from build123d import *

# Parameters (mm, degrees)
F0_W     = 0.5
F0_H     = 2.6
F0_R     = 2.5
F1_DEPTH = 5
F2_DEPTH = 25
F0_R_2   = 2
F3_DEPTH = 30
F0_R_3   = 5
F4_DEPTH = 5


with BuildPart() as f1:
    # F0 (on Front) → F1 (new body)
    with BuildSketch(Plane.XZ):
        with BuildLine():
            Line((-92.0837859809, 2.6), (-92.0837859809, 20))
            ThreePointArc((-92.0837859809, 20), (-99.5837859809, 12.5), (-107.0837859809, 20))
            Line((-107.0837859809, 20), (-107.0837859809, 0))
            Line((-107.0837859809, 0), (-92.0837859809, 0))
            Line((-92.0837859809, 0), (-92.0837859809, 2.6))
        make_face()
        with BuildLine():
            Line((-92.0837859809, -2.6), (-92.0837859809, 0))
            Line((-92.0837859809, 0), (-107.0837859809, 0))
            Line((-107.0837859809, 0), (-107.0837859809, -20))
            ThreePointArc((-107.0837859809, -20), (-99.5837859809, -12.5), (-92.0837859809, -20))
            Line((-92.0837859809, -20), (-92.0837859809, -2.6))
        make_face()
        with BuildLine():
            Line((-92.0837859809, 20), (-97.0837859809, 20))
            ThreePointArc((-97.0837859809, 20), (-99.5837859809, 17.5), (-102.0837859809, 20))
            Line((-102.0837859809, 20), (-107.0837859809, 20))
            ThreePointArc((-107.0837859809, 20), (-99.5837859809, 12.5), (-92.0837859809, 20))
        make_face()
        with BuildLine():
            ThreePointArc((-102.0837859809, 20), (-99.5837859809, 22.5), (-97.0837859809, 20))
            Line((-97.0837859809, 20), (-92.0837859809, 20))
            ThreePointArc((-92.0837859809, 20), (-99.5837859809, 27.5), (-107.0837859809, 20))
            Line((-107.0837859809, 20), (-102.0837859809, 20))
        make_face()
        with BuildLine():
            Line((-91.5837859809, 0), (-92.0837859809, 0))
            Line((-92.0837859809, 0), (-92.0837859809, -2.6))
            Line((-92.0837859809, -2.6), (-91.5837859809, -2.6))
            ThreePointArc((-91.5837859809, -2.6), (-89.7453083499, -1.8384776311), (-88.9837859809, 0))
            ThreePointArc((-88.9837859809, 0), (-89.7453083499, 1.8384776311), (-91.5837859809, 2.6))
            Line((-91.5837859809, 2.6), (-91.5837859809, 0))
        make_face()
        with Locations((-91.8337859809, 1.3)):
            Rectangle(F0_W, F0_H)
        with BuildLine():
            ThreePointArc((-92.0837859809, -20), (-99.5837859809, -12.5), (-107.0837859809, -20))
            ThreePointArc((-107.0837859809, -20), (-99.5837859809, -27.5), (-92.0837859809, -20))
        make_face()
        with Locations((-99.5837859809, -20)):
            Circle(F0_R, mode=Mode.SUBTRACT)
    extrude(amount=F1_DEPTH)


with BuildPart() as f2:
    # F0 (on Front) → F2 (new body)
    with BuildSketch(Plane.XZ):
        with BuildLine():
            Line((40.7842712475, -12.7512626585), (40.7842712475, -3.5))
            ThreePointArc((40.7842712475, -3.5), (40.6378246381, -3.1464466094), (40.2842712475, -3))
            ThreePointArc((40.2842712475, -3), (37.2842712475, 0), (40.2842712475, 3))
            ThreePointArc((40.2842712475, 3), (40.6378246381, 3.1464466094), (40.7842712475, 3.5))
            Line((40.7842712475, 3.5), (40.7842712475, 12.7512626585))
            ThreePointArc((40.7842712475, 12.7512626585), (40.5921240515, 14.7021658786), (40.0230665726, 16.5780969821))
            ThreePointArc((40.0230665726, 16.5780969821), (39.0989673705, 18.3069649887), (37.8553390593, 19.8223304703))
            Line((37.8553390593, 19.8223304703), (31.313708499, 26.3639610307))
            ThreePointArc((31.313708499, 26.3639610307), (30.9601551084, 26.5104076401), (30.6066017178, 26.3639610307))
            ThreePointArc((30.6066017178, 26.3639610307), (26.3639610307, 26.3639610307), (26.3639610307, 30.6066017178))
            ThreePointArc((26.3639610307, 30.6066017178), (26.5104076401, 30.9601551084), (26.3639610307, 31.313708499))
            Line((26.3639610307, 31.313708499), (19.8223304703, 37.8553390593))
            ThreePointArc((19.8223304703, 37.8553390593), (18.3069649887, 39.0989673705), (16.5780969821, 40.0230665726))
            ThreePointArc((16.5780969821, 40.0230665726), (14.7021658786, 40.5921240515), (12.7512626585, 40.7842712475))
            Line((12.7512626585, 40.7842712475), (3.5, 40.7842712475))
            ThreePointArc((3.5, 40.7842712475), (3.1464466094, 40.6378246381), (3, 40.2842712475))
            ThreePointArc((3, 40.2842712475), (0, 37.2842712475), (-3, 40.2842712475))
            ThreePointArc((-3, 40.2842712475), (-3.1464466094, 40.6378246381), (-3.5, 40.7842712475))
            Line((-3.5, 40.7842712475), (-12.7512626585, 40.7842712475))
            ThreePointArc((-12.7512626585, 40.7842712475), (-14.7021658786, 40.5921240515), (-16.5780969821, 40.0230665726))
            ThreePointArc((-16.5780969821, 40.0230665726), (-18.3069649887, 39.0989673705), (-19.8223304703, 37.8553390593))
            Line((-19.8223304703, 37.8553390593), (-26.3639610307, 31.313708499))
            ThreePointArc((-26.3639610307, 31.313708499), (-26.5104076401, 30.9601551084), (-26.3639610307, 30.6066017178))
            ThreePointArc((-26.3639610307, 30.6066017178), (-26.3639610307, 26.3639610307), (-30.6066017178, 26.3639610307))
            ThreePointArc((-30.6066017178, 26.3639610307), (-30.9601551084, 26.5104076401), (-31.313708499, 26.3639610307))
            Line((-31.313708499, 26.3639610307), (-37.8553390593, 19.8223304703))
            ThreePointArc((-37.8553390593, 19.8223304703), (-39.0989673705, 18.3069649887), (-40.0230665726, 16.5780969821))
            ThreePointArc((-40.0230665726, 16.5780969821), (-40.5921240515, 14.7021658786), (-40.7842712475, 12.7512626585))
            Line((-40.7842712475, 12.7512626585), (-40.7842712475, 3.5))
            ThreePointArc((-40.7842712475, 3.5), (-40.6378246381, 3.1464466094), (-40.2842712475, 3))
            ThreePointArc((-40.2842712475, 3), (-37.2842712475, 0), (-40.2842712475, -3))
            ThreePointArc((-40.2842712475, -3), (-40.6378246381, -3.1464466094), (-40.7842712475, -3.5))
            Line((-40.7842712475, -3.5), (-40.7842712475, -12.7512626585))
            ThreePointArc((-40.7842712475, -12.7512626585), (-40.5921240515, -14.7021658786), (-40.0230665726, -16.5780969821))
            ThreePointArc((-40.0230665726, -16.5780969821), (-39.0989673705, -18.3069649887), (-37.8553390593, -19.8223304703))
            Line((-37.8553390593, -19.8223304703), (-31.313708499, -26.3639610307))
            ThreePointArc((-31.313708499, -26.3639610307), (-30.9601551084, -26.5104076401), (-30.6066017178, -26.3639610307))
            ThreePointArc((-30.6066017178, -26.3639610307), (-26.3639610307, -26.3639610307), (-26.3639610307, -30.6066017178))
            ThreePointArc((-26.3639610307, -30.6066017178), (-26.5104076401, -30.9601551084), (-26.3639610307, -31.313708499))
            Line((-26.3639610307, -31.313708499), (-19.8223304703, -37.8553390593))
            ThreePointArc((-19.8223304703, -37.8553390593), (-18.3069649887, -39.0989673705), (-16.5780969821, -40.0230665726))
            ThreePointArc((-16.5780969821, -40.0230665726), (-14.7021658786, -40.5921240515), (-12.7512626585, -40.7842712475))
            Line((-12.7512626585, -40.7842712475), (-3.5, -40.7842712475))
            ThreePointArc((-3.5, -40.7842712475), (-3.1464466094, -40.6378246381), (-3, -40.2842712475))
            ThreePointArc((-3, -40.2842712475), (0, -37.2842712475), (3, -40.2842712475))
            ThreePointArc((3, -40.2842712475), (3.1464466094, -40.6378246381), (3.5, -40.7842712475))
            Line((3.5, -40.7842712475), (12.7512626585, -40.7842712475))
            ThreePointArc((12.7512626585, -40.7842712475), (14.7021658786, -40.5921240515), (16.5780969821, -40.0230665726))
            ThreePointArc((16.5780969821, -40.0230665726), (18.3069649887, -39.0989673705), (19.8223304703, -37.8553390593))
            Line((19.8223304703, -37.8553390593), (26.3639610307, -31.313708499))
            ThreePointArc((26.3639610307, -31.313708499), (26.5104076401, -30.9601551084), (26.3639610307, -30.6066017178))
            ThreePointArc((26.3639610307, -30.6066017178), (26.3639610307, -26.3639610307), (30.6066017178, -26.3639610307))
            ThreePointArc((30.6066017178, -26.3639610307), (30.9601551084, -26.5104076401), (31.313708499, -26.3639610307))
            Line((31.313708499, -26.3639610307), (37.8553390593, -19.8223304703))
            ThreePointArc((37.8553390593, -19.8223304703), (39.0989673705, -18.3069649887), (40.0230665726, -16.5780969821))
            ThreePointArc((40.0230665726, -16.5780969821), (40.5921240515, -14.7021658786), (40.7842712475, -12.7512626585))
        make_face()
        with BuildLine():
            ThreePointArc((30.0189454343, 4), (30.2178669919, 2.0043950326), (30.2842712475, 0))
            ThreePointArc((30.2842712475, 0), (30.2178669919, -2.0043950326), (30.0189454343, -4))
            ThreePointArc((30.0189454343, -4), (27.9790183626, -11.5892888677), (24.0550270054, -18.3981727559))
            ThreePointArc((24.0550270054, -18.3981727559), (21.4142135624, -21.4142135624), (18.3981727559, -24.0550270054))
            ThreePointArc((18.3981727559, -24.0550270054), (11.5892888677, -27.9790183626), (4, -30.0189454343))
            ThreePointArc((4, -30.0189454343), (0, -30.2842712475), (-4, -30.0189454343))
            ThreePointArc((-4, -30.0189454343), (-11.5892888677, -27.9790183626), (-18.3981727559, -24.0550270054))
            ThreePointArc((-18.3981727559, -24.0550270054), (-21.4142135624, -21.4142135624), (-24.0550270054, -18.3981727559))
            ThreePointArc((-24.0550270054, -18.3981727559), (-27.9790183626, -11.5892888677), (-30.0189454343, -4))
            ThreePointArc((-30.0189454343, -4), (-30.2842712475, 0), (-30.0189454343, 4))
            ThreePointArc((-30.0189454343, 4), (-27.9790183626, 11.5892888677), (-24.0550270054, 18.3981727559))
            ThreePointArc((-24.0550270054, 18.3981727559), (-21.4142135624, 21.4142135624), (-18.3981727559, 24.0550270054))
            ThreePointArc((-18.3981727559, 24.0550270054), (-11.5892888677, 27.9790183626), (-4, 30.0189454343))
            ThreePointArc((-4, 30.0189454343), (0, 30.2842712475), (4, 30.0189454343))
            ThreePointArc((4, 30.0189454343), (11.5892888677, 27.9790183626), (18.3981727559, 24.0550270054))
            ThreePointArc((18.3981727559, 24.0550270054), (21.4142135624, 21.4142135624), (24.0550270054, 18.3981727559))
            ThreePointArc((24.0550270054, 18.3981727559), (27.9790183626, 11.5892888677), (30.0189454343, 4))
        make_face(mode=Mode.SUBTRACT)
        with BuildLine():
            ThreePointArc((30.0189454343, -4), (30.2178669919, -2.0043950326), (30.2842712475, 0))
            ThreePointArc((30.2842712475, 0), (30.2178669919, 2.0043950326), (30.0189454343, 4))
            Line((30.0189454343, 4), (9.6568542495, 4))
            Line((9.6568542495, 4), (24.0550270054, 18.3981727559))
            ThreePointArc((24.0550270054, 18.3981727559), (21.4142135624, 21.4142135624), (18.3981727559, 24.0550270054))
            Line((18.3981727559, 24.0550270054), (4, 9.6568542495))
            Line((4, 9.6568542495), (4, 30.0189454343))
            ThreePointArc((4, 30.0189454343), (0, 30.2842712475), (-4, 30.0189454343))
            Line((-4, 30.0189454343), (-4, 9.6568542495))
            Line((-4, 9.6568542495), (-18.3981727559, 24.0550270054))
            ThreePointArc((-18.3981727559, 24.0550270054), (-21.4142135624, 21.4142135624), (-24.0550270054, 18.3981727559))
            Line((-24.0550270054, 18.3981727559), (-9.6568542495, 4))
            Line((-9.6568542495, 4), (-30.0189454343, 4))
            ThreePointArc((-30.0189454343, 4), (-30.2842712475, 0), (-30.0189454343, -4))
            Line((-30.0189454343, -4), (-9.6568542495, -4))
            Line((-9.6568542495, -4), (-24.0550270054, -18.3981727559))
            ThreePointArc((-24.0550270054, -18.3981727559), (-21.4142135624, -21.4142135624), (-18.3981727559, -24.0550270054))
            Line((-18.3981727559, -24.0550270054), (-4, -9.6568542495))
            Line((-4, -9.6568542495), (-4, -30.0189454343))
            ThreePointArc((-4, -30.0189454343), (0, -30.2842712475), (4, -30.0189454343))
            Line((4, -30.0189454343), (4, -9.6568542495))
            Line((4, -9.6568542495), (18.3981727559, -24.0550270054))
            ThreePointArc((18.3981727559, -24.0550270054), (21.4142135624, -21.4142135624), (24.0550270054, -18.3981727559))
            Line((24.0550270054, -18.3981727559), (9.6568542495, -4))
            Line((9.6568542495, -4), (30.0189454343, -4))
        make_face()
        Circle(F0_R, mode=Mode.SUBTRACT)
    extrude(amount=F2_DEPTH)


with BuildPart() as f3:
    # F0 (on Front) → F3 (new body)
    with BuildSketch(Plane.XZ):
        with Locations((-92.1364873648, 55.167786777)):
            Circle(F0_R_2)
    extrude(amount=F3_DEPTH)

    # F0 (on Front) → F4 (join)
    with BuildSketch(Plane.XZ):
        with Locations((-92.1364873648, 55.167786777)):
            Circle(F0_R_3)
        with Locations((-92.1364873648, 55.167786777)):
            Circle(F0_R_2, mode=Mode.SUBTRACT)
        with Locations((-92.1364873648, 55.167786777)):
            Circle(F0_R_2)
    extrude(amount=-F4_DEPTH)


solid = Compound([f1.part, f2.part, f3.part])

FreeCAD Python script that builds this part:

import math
import FreeCAD as App
import Part
import Sketcher
from FreeCAD import Vector

doc = App.newDocument("Part")
body = doc.addObject("PartDesign::Body", "Body")

# Sketch on XZ plane
sketch1 = body.newObject("Sketcher::SketchObject", "Sketch")
sketch1.AttachmentSupport = (doc.getObject("XZ_Plane"), [""])
sketch1.MapMode = "FlatFace"
sketch1.addGeometry([
    Part.LineSegment(Vector(-107.1, 20, 0), Vector(-107.1, -20, 0)),  # 0
    Part.ArcOfCircle(Part.Circle(Vector(-99.6, -20, 0), Vector(0, 0, 1), 7.5), math.radians(180), math.radians(360)),  # 1
    Part.LineSegment(Vector(-92.1, -20, 0), Vector(-92.1, -2.6, 0)),  # 2
    Part.LineSegment(Vector(-92.1, -2.6, 0), Vector(-91.6, -2.6, 0)),  # 3
    Part.ArcOfCircle(Part.Circle(Vector(-91.6, 0, 0), Vector(0, 0, 1), 2.6), math.radians(-90), math.radians(0)),  # 4
    Part.ArcOfCircle(Part.Circle(Vector(-91.6, 0, 0), Vector(0, 0, 1), 2.6), math.radians(0), math.radians(90)),  # 5
    Part.LineSegment(Vector(-91.6, 2.6, 0), Vector(-92.1, 2.6, 0)),  # 6
    Part.LineSegment(Vector(-92.1, 2.6, 0), Vector(-92.1, 20, 0)),  # 7
    Part.ArcOfCircle(Part.Circle(Vector(-99.6, 20, 0), Vector(0, 0, 1), 7.5), math.radians(0), math.radians(180)),  # 8
    Part.Circle(Vector(-99.6, -20, 0), Vector(0, 0, 1), 2.5),  # 9
    Part.Circle(Vector(-99.6, 20, 0), Vector(0, 0, 1), 2.5),  # 10
], False)
sketch1.addConstraint([
    Sketcher.Constraint("Tangent", 0, 2, 1, 1),
    Sketcher.Constraint("Tangent", 1, 2, 2, 1),
    Sketcher.Constraint("Coincident", 2, 2, 3, 1),
    Sketcher.Constraint("Tangent", 3, 2, 4, 1),
    Sketcher.Constraint("Tangent", 4, 2, 5, 1),
    Sketcher.Constraint("Tangent", 5, 2, 6, 1),
    Sketcher.Constraint("Coincident", 6, 2, 7, 1),
    Sketcher.Constraint("Tangent", 7, 2, 8, 1),
    Sketcher.Constraint("Tangent", 8, 2, 0, 1),
    Sketcher.Constraint("Vertical", 0),
    Sketcher.Constraint("Vertical", 2),
    Sketcher.Constraint("Horizontal", 3),
    Sketcher.Constraint("Horizontal", 6),
    Sketcher.Constraint("Vertical", 7),
    Sketcher.Constraint("Coincident", 9, 3, 1, 3),
    Sketcher.Constraint("Coincident", 10, 3, 8, 3),
    Sketcher.Constraint("Equal", 4, 5),
    Sketcher.Constraint("Equal", 1, 8),
    Sketcher.Constraint("Equal", 9, 10),
    Sketcher.Constraint("PointOnObject", 4, 3, -1),
    Sketcher.Constraint("PointOnObject", 4, 2, -1),
    Sketcher.Constraint("Equal", 2, 7),
    Sketcher.Constraint("Diameter", 9, 5.0),
    Sketcher.Constraint("Radius", 1, 7.5),
    Sketcher.Constraint("Radius", 4, 2.6),
    Sketcher.Constraint("DistanceY", 0, 2, 0, 1, 40.0),
    Sketcher.Constraint("DistanceX", 3, 1, 3, 2, 0.5),
    Sketcher.Constraint("DistanceX", 1, 3, -1, 1, 99.583786),
])
pad1 = body.newObject("PartDesign::Pad", "Pad")
pad1.Profile = sketch1
pad1.Length = 5
body2 = doc.addObject("PartDesign::Body", "Body001")

# Sketch on XZ plane
sketch2 = body2.newObject("Sketcher::SketchObject", "Sketch001")
sketch2.AttachmentSupport = (doc.getObject("XZ_Plane001"), [""])
sketch2.MapMode = "FlatFace"
sketch2.addGeometry([
    Part.LineSegment(Vector(40.8, -12.8, 0), Vector(40.8, -3.5, 0)),  # 0
    Part.ArcOfCircle(Part.Circle(Vector(40.3, -3.5, 0), Vector(0, 0, 1), 0.5), math.radians(0), math.radians(90)),  # 1
    Part.ArcOfCircle(Part.Circle(Vector(40.3, 0, 0), Vector(0, 0, 1), 3), math.radians(90), math.radians(270)),  # 2
    Part.ArcOfCircle(Part.Circle(Vector(40.3, 3.5, 0), Vector(0, 0, 1), 0.5), math.radians(-90), math.radians(0)),  # 3
    Part.LineSegment(Vector(40.8, 3.5, 0), Vector(40.8, 12.8, 0)),  # 4
    Part.ArcOfCircle(Part.Circle(Vector(30.8, 12.8, 0), Vector(0, 0, 1), 10), math.radians(0), math.radians(22)),  # 5
    Part.ArcOfCircle(Part.Circle(Vector(30.8, 12.8, 0), Vector(0, 0, 1), 10), math.radians(22), math.radians(45)),  # 6
    Part.LineSegment(Vector(37.9, 19.8, 0), Vector(31.3, 26.4, 0)),  # 7
    Part.ArcOfCircle(Part.Circle(Vector(31, 26, 0), Vector(0, 0, 1), 0.5), math.radians(45), math.radians(135)),  # 8
    Part.ArcOfCircle(Part.Circle(Vector(28.5, 28.5, 0), Vector(0, 0, 1), 3), math.radians(135), math.radians(315)),  # 9
    Part.ArcOfCircle(Part.Circle(Vector(26, 31, 0), Vector(0, 0, 1), 0.5), math.radians(-45), math.radians(45)),  # 10
    Part.LineSegment(Vector(26.4, 31.3, 0), Vector(19.8, 37.9, 0)),  # 11
    Part.ArcOfCircle(Part.Circle(Vector(12.8, 30.8, 0), Vector(0, 0, 1), 10), math.radians(45), math.radians(68)),  # 12
    Part.ArcOfCircle(Part.Circle(Vector(12.8, 30.8, 0), Vector(0, 0, 1), 10), math.radians(68), math.radians(90)),  # 13
    Part.LineSegment(Vector(12.8, 40.8, 0), Vector(3.5, 40.8, 0)),  # 14
    Part.ArcOfCircle(Part.Circle(Vector(3.5, 40.3, 0), Vector(0, 0, 1), 0.5), math.radians(90), math.radians(180)),  # 15
    Part.ArcOfCircle(Part.Circle(Vector(0, 40.3, 0), Vector(0, 0, 1), 3), math.radians(180), math.radians(360)),  # 16
    Part.ArcOfCircle(Part.Circle(Vector(-3.5, 40.3, 0), Vector(0, 0, 1), 0.5), math.radians(0), math.radians(90)),  # 17
    Part.LineSegment(Vector(-3.5, 40.8, 0), Vector(-12.8, 40.8, 0)),  # 18
    Part.ArcOfCircle(Part.Circle(Vector(-12.8, 30.8, 0), Vector(0, 0, 1), 10), math.radians(90), math.radians(112)),  # 19
    Part.ArcOfCircle(Part.Circle(Vector(-12.8, 30.8, 0), Vector(0, 0, 1), 10), math.radians(112), math.radians(135)),  # 20
    Part.LineSegment(Vector(-19.8, 37.9, 0), Vector(-26.4, 31.3, 0)),  # 21
    Part.ArcOfCircle(Part.Circle(Vector(-26, 31, 0), Vector(0, 0, 1), 0.5), math.radians(135), math.radians(225)),  # 22
    Part.ArcOfCircle(Part.Circle(Vector(-28.5, 28.5, 0), Vector(0, 0, 1), 3), math.radians(-135), math.radians(45)),  # 23
    Part.ArcOfCircle(Part.Circle(Vector(-31, 26, 0), Vector(0, 0, 1), 0.5), math.radians(45), math.radians(135)),  # 24
    Part.LineSegment(Vector(-31.3, 26.4, 0), Vector(-37.9, 19.8, 0)),  # 25
    Part.ArcOfCircle(Part.Circle(Vector(-30.8, 12.8, 0), Vector(0, 0, 1), 10), math.radians(135), math.radians(158)),  # 26
    Part.ArcOfCircle(Part.Circle(Vector(-30.8, 12.8, 0), Vector(0, 0, 1), 10), math.radians(158), math.radians(180)),  # 27
    Part.LineSegment(Vector(-40.8, 12.8, 0), Vector(-40.8, 3.5, 0)),  # 28
    Part.ArcOfCircle(Part.Circle(Vector(-40.3, 3.5, 0), Vector(0, 0, 1), 0.5), math.radians(180), math.radians(270)),  # 29
    Part.ArcOfCircle(Part.Circle(Vector(-40.3, 0, 0), Vector(0, 0, 1), 3), math.radians(-90), math.radians(90)),  # 30
    Part.ArcOfCircle(Part.Circle(Vector(-40.3, -3.5, 0), Vector(0, 0, 1), 0.5), math.radians(90), math.radians(180)),  # 31
    Part.LineSegment(Vector(-40.8, -3.5, 0), Vector(-40.8, -12.8, 0)),  # 32
    Part.ArcOfCircle(Part.Circle(Vector(-30.8, -12.8, 0), Vector(0, 0, 1), 10), math.radians(180), math.radians(202)),  # 33
    Part.ArcOfCircle(Part.Circle(Vector(-30.8, -12.8, 0), Vector(0, 0, 1), 10), math.radians(-158), math.radians(-135)),  # 34
    Part.LineSegment(Vector(-37.9, -19.8, 0), Vector(-31.3, -26.4, 0)),  # 35
    Part.ArcOfCircle(Part.Circle(Vector(-31, -26, 0), Vector(0, 0, 1), 0.5), math.radians(-135), math.radians(-45)),  # 36
    Part.ArcOfCircle(Part.Circle(Vector(-28.5, -28.5, 0), Vector(0, 0, 1), 3), math.radians(-45), math.radians(135)),  # 37
    Part.ArcOfCircle(Part.Circle(Vector(-26, -31, 0), Vector(0, 0, 1), 0.5), math.radians(135), math.radians(225)),  # 38
    Part.LineSegment(Vector(-26.4, -31.3, 0), Vector(-19.8, -37.9, 0)),  # 39
    Part.ArcOfCircle(Part.Circle(Vector(-12.8, -30.8, 0), Vector(0, 0, 1), 10), math.radians(-135), math.radians(-112)),  # 40
    Part.ArcOfCircle(Part.Circle(Vector(-12.8, -30.8, 0), Vector(0, 0, 1), 10), math.radians(-112), math.radians(-90)),  # 41
    Part.LineSegment(Vector(-12.8, -40.8, 0), Vector(-3.5, -40.8, 0)),  # 42
    Part.ArcOfCircle(Part.Circle(Vector(-3.5, -40.3, 0), Vector(0, 0, 1), 0.5), math.radians(-90), math.radians(0)),  # 43
    Part.ArcOfCircle(Part.Circle(Vector(0, -40.3, 0), Vector(0, 0, 1), 3), math.radians(0), math.radians(180)),  # 44
    Part.ArcOfCircle(Part.Circle(Vector(3.5, -40.3, 0), Vector(0, 0, 1), 0.5), math.radians(180), math.radians(270)),  # 45
    Part.LineSegment(Vector(3.5, -40.8, 0), Vector(12.8, -40.8, 0)),  # 46
    Part.ArcOfCircle(Part.Circle(Vector(12.8, -30.8, 0), Vector(0, 0, 1), 10), math.radians(-90), math.radians(-68)),  # 47
    Part.ArcOfCircle(Part.Circle(Vector(12.8, -30.8, 0), Vector(0, 0, 1), 10), math.radians(-68), math.radians(-45)),  # 48
    Part.LineSegment(Vector(19.8, -37.9, 0), Vector(26.4, -31.3, 0)),  # 49
    Part.ArcOfCircle(Part.Circle(Vector(26, -31, 0), Vector(0, 0, 1), 0.5), math.radians(-45), math.radians(45)),  # 50
    Part.ArcOfCircle(Part.Circle(Vector(28.5, -28.5, 0), Vector(0, 0, 1), 3), math.radians(45), math.radians(225)),  # 51
    Part.ArcOfCircle(Part.Circle(Vector(31, -26, 0), Vector(0, 0, 1), 0.5), math.radians(-135), math.radians(-45)),  # 52
    Part.LineSegment(Vector(31.3, -26.4, 0), Vector(37.9, -19.8, 0)),  # 53
    Part.ArcOfCircle(Part.Circle(Vector(30.8, -12.8, 0), Vector(0, 0, 1), 10), math.radians(-45), math.radians(-22)),  # 54
    Part.ArcOfCircle(Part.Circle(Vector(30.8, -12.8, 0), Vector(0, 0, 1), 10), math.radians(-22), math.radians(0)),  # 55
    Part.ArcOfCircle(Part.Circle(Vector(0, 0, 0), Vector(0, 0, 1), 30.3), math.radians(-127), math.radians(-98)),  # 56
    Part.LineSegment(Vector(-18.4, -24.1, 0), Vector(-4, -9.7, 0)),  # 57
    Part.LineSegment(Vector(-4, -9.7, 0), Vector(-4, -30, 0)),  # 58
    Part.ArcOfCircle(Part.Circle(Vector(0, 0, 0), Vector(0, 0, 1), 30.3), math.radians(-172), math.radians(-143)),  # 59
    Part.LineSegment(Vector(-30, -4, 0), Vector(-9.7, -4, 0)),  # 60
    Part.LineSegment(Vector(-9.7, -4, 0), Vector(-24.1, -18.4, 0)),  # 61
    Part.ArcOfCircle(Part.Circle(Vector(0, 0, 0), Vector(0, 0, 1), 30.3), math.radians(-82), math.radians(-53)),  # 62
    Part.LineSegment(Vector(4, -30, 0), Vector(4, -9.7, 0)),  # 63
    Part.LineSegment(Vector(4, -9.7, 0), Vector(18.4, -24.1, 0)),  # 64
    Part.ArcOfCircle(Part.Circle(Vector(0, 0, 0), Vector(0, 0, 1), 30.3), math.radians(-37), math.radians(-8)),  # 65
    Part.LineSegment(Vector(24.1, -18.4, 0), Vector(9.7, -4, 0)),  # 66
    Part.LineSegment(Vector(9.7, -4, 0), Vector(30, -4, 0)),  # 67
    Part.ArcOfCircle(Part.Circle(Vector(0, 0, 0), Vector(0, 0, 1), 30.3), math.radians(143), math.radians(172)),  # 68
    Part.LineSegment(Vector(-24.1, 18.4, 0), Vector(-9.7, 4, 0)),  # 69
    Part.LineSegment(Vector(-9.7, 4, 0), Vector(-30, 4, 0)),  # 70
    Part.ArcOfCircle(Part.Circle(Vector(0, 0, 0), Vector(0, 0, 1), 30.3), math.radians(98), math.radians(127)),  # 71
    Part.LineSegment(Vector(-4, 30, 0), Vector(-4, 9.7, 0)),  # 72
    Part.LineSegment(Vector(-4, 9.7, 0), Vector(-18.4, 24.1, 0)),  # 73
    Part.Circle(Vector(0, 0, 0), Vector(0, 0, 1), 2.5),  # 74
    Part.ArcOfCircle(Part.Circle(Vector(0, 0, 0), Vector(0, 0, 1), 30.3), math.radians(8), math.radians(37)),  # 75
    Part.LineSegment(Vector(30, 4, 0), Vector(9.7, 4, 0)),  # 76
    Part.LineSegment(Vector(9.7, 4, 0), Vector(24.1, 18.4, 0)),  # 77
    Part.ArcOfCircle(Part.Circle(Vector(0, 0, 0), Vector(0, 0, 1), 30.3), math.radians(53), math.radians(82)),  # 78
    Part.LineSegment(Vector(18.4, 24.1, 0), Vector(4, 9.7, 0)),  # 79
    Part.LineSegment(Vector(4, 9.7, 0), Vector(4, 30, 0)),  # 80
], False)
sketch2.addConstraint([
    Sketcher.Constraint("Tangent", 0, 2, 1, 1),
    Sketcher.Constraint("Tangent", 1, 2, 2, 2),
    Sketcher.Constraint("Tangent", 2, 1, 3, 1),
    Sketcher.Constraint("Tangent", 3, 2, 4, 1),
    Sketcher.Constraint("Tangent", 4, 2, 5, 1),
    Sketcher.Constraint("Tangent", 5, 2, 6, 1),
    Sketcher.Constraint("Tangent", 6, 2, 7, 1),
    Sketcher.Constraint("Tangent", 7, 2, 8, 1),
    Sketcher.Constraint("Tangent", 8, 2, 9, 2),
    Sketcher.Constraint("Tangent", 9, 1, 10, 1),
    Sketcher.Constraint("Tangent", 10, 2, 11, 1),
    Sketcher.Constraint("Tangent", 11, 2, 12, 1),
    Sketcher.Constraint("Tangent", 12, 2, 13, 1),
    Sketcher.Constraint("Tangent", 13, 2, 14, 1),
    Sketcher.Constraint("Tangent", 14, 2, 15, 1),
    Sketcher.Constraint("Tangent", 15, 2, 16, 2),
    Sketcher.Constraint("Tangent", 16, 1, 17, 1),
    Sketcher.Constraint("Tangent", 17, 2, 18, 1),
    Sketcher.Constraint("Tangent", 18, 2, 19, 1),
    Sketcher.Constraint("Tangent", 19, 2, 20, 1),
    Sketcher.Constraint("Tangent", 20, 2, 21, 1),
    Sketcher.Constraint("Tangent", 21, 2, 22, 1),
    Sketcher.Constraint("Tangent", 22, 2, 23, 2),
    Sketcher.Constraint("Tangent", 23, 1, 24, 1),
    Sketcher.Constraint("Tangent", 24, 2, 25, 1),
    Sketcher.Constraint("Tangent", 25, 2, 26, 1),
    Sketcher.Constraint("Tangent", 26, 2, 27, 1),
    Sketcher.Constraint("Tangent", 27, 2, 28, 1),
    Sketcher.Constraint("Tangent", 28, 2, 29, 1),
    Sketcher.Constraint("Tangent", 29, 2, 30, 2),
    Sketcher.Constraint("Tangent", 30, 1, 31, 1),
    Sketcher.Constraint("Tangent", 31, 2, 32, 1),
    Sketcher.Constraint("Tangent", 32, 2, 33, 1),
    Sketcher.Constraint("Tangent", 33, 2, 34, 1),
    Sketcher.Constraint("Tangent", 34, 2, 35, 1),
    Sketcher.Constraint("Tangent", 35, 2, 36, 1),
    Sketcher.Constraint("Tangent", 36, 2, 37, 2),
    Sketcher.Constraint("Tangent", 37, 1, 38, 1),
    Sketcher.Constraint("Tangent", 38, 2, 39, 1),
    Sketcher.Constraint("Tangent", 39, 2, 40, 1),
    Sketcher.Constraint("Tangent", 40, 2, 41, 1),
    Sketcher.Constraint("Tangent", 41, 2, 42, 1),
    Sketcher.Constraint("Tangent", 42, 2, 43, 1),
    Sketcher.Constraint("Tangent", 43, 2, 44, 2),
    Sketcher.Constraint("Tangent", 44, 1, 45, 1),
    Sketcher.Constraint("Tangent", 45, 2, 46, 1),
    Sketcher.Constraint("Tangent", 46, 2, 47, 1),
    Sketcher.Constraint("Tangent", 47, 2, 48, 1),
    Sketcher.Constraint("Tangent", 48, 2, 49, 1),
    Sketcher.Constraint("Tangent", 49, 2, 50, 1),
    Sketcher.Constraint("Tangent", 50, 2, 51, 2),
    Sketcher.Constraint("Tangent", 51, 1, 52, 1),
    Sketcher.Constraint("Tangent", 52, 2, 53, 1),
    Sketcher.Constraint("Tangent", 53, 2, 54, 1),
    Sketcher.Constraint("Tangent", 54, 2, 55, 1),
    Sketcher.Constraint("Tangent", 55, 2, 0, 1),
    Sketcher.Constraint("Coincident", 56, 1, 57, 1),
    Sketcher.Constraint("Coincident", 57, 2, 58, 1),
    Sketcher.Constraint("Coincident", 58, 2, 56, 2),
    Sketcher.Constraint("Coincident", 59, 1, 60, 1),
    Sketcher.Constraint("Coincident", 60, 2, 61, 1),
    Sketcher.Constraint("Coincident", 61, 2, 59, 2),
    Sketcher.Constraint("Coincident", 62, 1, 63, 1),
    Sketcher.Constraint("Coincident", 63, 2, 64, 1),
    Sketcher.Constraint("Coincident", 64, 2, 62, 2),
    Sketcher.Constraint("Coincident", 65, 1, 66, 1),
    Sketcher.Constraint("Coincident", 66, 2, 67, 1),
    Sketcher.Constraint("Coincident", 67, 2, 65, 2),
    Sketcher.Constraint("Coincident", 68, 1, 69, 1),
    Sketcher.Constraint("Coincident", 69, 2, 70, 1),
    Sketcher.Constraint("Coincident", 70, 2, 68, 2),
    Sketcher.Constraint("Coincident", 71, 1, 72, 1),
    Sketcher.Constraint("Coincident", 72, 2, 73, 1),
    Sketcher.Constraint("Coincident", 73, 2, 71, 2),
    Sketcher.Constraint("Coincident", 75, 1, 76, 1),
    Sketcher.Constraint("Coincident", 76, 2, 77, 1),
    Sketcher.Constraint("Coincident", 77, 2, 75, 2),
    Sketcher.Constraint("Coincident", 78, 1, 79, 1),
    Sketcher.Constraint("Coincident", 79, 2, 80, 1),
    Sketcher.Constraint("Coincident", 80, 2, 78, 2),
    Sketcher.Constraint("Vertical", 0),
    Sketcher.Constraint("Vertical", 4),
    Sketcher.Constraint("Horizontal", 14),
    Sketcher.Constraint("Horizontal", 18),
    Sketcher.Constraint("Vertical", 28),
    Sketcher.Constraint("Vertical", 32),
    Sketcher.Constraint("Horizontal", 42),
    Sketcher.Constraint("Horizontal", 46),
    Sketcher.Constraint("Vertical", 58),
    Sketcher.Constraint("Horizontal", 60),
    Sketcher.Constraint("Vertical", 63),
    Sketcher.Constraint("Horizontal", 67),
    Sketcher.Constraint("Horizontal", 70),
    Sketcher.Constraint("Vertical", 72),
    Sketcher.Constraint("Horizontal", 76),
    Sketcher.Constraint("Vertical", 80),
    Sketcher.Constraint("Coincident", 56, 3, -1, 1),
    Sketcher.Constraint("Coincident", 59, 3, -1, 1),
    Sketcher.Constraint("Coincident", 62, 3, -1, 1),
    Sketcher.Constraint("Coincident", 65, 3, -1, 1),
    Sketcher.Constraint("Coincident", 68, 3, -1, 1),
    Sketcher.Constraint("Coincident", 71, 3, -1, 1),
    Sketcher.Constraint("Coincident", 74, 3, -1, 1),
    Sketcher.Constraint("Coincident", 75, 3, -1, 1),
    Sketcher.Constraint("Coincident", 78, 3, -1, 1),
    Sketcher.Constraint("Equal", 1, 3),
    Sketcher.Constraint("Equal", 5, 6),
    Sketcher.Constraint("Equal", 3, 8),
    Sketcher.Constraint("Equal", 2, 9),
    Sketcher.Constraint("Equal", 8, 10),
    Sketcher.Constraint("Equal", 6, 12),
    Sketcher.Constraint("Equal", 12, 13),
    Sketcher.Constraint("Equal", 10, 15),
    Sketcher.Constraint("Equal", 9, 16),
    Sketcher.Constraint("Equal", 15, 17),
    Sketcher.Constraint("Equal", 13, 19),
    Sketcher.Constraint("Equal", 19, 20),
    Sketcher.Constraint("Equal", 17, 22),
    Sketcher.Constraint("Equal", 16, 23),
    Sketcher.Constraint("Equal", 22, 24),
    Sketcher.Constraint("Equal", 20, 26),
    Sketcher.Constraint("Equal", 26, 27),
    Sketcher.Constraint("Equal", 24, 29),
    Sketcher.Constraint("Equal", 23, 30),
    Sketcher.Constraint("Equal", 29, 31),
    Sketcher.Constraint("Equal", 27, 33),
    Sketcher.Constraint("Equal", 33, 34),
    Sketcher.Constraint("Equal", 31, 36),
    Sketcher.Constraint("Equal", 30, 37),
    Sketcher.Constraint("Equal", 36, 38),
    Sketcher.Constraint("Equal", 34, 40),
    Sketcher.Constraint("Equal", 40, 41),
    Sketcher.Constraint("Equal", 38, 43),
    Sketcher.Constraint("Equal", 37, 44),
    Sketcher.Constraint("Equal", 43, 45),
    Sketcher.Constraint("Equal", 41, 47),
    Sketcher.Constraint("Equal", 47, 48),
    Sketcher.Constraint("Equal", 45, 50),
    Sketcher.Constraint("Equal", 44, 51),
    Sketcher.Constraint("Equal", 50, 52),
    Sketcher.Constraint("Equal", 48, 54),
    Sketcher.Constraint("Equal", 54, 55),
    Sketcher.Constraint("Equal", 56, 59),
    Sketcher.Constraint("Equal", 59, 62),
    Sketcher.Constraint("Equal", 62, 65),
    Sketcher.Constraint("Equal", 65, 68),
    Sketcher.Constraint("Equal", 68, 71),
    Sketcher.Constraint("Equal", 71, 75),
    Sketcher.Constraint("Equal", 75, 78),
    Sketcher.Constraint("Symmetric", 1, 3, 29, 3, -1, 1),
    Sketcher.Constraint("Symmetric", 5, 3, 33, 3, -1, 1),
    Sketcher.Constraint("Symmetric", 8, 3, 36, 3, -1, 1),
    Sketcher.Constraint("Symmetric", 12, 3, 40, 3, -1, 1),
    Sketcher.Constraint("Symmetric", 16, 3, 44, 3, -1, 1),
    Sketcher.Constraint("Symmetric", 19, 3, 47, 3, -1, 1),
    Sketcher.Constraint("Symmetric", 22, 3, 50, 3, -1, 1),
    Sketcher.Constraint("Symmetric", 24, 2, 52, 2, -1, 1),
    Sketcher.Constraint("Symmetric", 66, 2, 69, 2, -1, 1),
    Sketcher.Constraint("Symmetric", 63, 2, 72, 2, -1, 1),
    Sketcher.Constraint("Symmetric", 60, 2, 76, 2, -1, 1),
    Sketcher.Constraint("Symmetric", 57, 2, 79, 2, -1, 1),
    Sketcher.Constraint("Symmetric", 15, 3, 17, 3, -2),
    Sketcher.Constraint("Symmetric", 10, 3, 22, 3, -2),
    Sketcher.Constraint("Symmetric", 5, 3, 26, 3, -2),
    Sketcher.Constraint("Symmetric", 2, 3, 30, 3, -2),
    Sketcher.Constraint("Symmetric", 12, 2, 19, 2, -2),
    Sketcher.Constraint("Symmetric", 57, 2, 63, 2, -2),
    Sketcher.Constraint("Symmetric", 60, 2, 66, 2, -2),
    Sketcher.Constraint("Parallel", 7, 11),
    Sketcher.Constraint("Perpendicular", 11, 21),
    Sketcher.Constraint("Parallel", 21, 25),
    Sketcher.Constraint("Parallel", 35, 39),
    Sketcher.Constraint("Parallel", 53, 57),
    Sketcher.Constraint("Parallel", 57, 61),
    Sketcher.Constraint("Perpendicular", 61, 64),
    Sketcher.Constraint("Parallel", 64, 66),
    Sketcher.Constraint("Parallel", 66, 69),
    Sketcher.Constraint("Parallel", 69, 73),
    Sketcher.Constraint("Perpendicular", 73, 77),
    Sketcher.Constraint("Parallel", 77, 79),
    Sketcher.Constraint("Horizontal", 15, 3, 16, 3),
    Sketcher.Constraint("Horizontal", 9, 3, 23, 3),
    Sketcher.Constraint("Horizontal", 37, 3, 51, 3),
    Sketcher.Constraint("Horizontal", 7, 2, 8, 2),
    Sketcher.Constraint("Horizontal", 5, 2, 26, 2),
    Sketcher.Constraint("Horizontal", 35, 2, 36, 2),
    Sketcher.Constraint("Horizontal", 40, 2, 47, 2),
    Sketcher.Constraint("Horizontal", 33, 2, 54, 2),
    Sketcher.Constraint("Vertical", 1, 3, 2, 3),
    Sketcher.Constraint("Vertical", 9, 1, 10, 2),
    Sketcher.Constraint("Vertical", 26, 2, 33, 2),
    Sketcher.Constraint("Vertical", 19, 2, 40, 2),
    Sketcher.Constraint("Equal", 46, 0),
    Sketcher.Constraint("Equal", 76, 58),
    Sketcher.Constraint("Equal", 7, 11),
    Sketcher.Constraint("Equal", 57, 61),
    Sketcher.Constraint("Diameter", 74, 5.0),
    Sketcher.Constraint("Radius", 2, 3.0),
    Sketcher.Constraint("Radius", 5, 10.0),
    Sketcher.Constraint("Radius", 1, 0.5),
    Sketcher.Constraint("DistanceX", 57, 2, -1, 1, 4.0),
    Sketcher.Constraint("Radius", 56, 30.284271),
    Sketcher.Constraint("DistanceX", 60, 1, 60, 2, 20.362091),
    Sketcher.Constraint("DistanceX", -1, 1, 8, 2, 30.606602),
    Sketcher.Constraint("DistanceX", 14, 2, 14, 1, 9.251263),
    Sketcher.Constraint("DistanceX", -1, 1, 5, 2, 40.023067),
    Sketcher.Constraint("DistanceX", -1, 1, 12, 2, 16.578097),
])
pad2 = body2.newObject("PartDesign::Pad", "Pad001")
pad2.Profile = sketch2
pad2.Length = 25
body3 = doc.addObject("PartDesign::Body", "Body002")

# Sketch on XZ plane
sketch3 = body3.newObject("Sketcher::SketchObject", "Sketch002")
sketch3.AttachmentSupport = (doc.getObject("XZ_Plane002"), [""])
sketch3.MapMode = "FlatFace"
sketch3.addGeometry(Part.Circle(Vector(-92.1, 55.2, 0), Vector(0, 0, 1), 2), False)
sketch3.addConstraint([
    Sketcher.Constraint("Diameter", 0, 4.0),
    Sketcher.Constraint("DistanceX", 0, 3, -1, 1, 92.136487),
    Sketcher.Constraint("DistanceY", -1, 1, 0, 3, 55.167787),
])
pad3 = body3.newObject("PartDesign::Pad", "Pad002")
pad3.Profile = sketch3
pad3.Length = 30

# Sketch on XZ plane
sketch4 = body3.newObject("Sketcher::SketchObject", "Sketch003")
sketch4.AttachmentSupport = (doc.getObject("XZ_Plane002"), [""])
sketch4.MapMode = "FlatFace"
sketch4.addGeometry(Part.Circle(Vector(-92, 55, 0), Vector(0, 0, 1), 5), False)
sketch4.addConstraint([
    Sketcher.Constraint("Diameter", 0, 10.0),
    Sketcher.Constraint("DistanceX", 0, 3, -1, 1, 92.136487),
    Sketcher.Constraint("DistanceY", -1, 1, 0, 3, 55.167787),
])
pad4 = body3.newObject("PartDesign::Pad", "Pad003")
pad4.Profile = sketch4
pad4.Length = 5
pad4.Reversed = True

doc.recompute()
